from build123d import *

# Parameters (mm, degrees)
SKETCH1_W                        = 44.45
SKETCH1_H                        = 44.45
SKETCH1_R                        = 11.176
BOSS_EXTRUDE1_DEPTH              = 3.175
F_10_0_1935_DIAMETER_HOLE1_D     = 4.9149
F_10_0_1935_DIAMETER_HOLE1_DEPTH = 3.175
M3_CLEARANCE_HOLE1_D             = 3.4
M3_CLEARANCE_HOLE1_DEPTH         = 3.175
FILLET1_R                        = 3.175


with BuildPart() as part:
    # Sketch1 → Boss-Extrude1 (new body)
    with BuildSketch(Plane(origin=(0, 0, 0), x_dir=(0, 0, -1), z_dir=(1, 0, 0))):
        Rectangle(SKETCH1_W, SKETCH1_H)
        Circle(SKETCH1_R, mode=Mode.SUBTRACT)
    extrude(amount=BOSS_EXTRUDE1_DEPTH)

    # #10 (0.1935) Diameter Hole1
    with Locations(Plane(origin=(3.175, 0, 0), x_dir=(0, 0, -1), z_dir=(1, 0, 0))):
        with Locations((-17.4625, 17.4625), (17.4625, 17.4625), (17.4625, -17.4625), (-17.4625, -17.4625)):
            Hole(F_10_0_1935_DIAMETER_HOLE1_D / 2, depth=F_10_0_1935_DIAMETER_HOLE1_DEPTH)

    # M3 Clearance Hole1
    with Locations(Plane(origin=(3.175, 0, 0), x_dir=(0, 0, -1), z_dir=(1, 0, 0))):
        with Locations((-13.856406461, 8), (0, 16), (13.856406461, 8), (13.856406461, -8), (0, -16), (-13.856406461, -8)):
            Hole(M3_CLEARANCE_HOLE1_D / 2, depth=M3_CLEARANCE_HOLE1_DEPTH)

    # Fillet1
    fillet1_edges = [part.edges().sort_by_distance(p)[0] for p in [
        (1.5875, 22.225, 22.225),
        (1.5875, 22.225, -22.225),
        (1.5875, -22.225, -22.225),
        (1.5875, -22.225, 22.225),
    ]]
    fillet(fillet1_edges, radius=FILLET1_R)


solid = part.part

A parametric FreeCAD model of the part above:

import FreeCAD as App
import Part
import Sketcher
from FreeCAD import Vector
Q = App.Units.Quantity


def edges_at(feature, points):
    """Names of the edges that pass closest to the given points."""
    edges = feature.Shape.Edges
    near = lambda p: min(range(len(edges)), key=lambda i: edges[i].distToShape(Part.Vertex(*p))[0])
    return sorted({f"Edge{near(p) + 1}" for p in points})


def add_polygon(sketch, points):
    """Adds a closed chain of lines whose ends are joined by coincident constraints."""
    first, n = sketch.GeometryCount, len(points)
    for a, b in zip(points, points[1:] + points[:1]):
        sketch.addGeometry(Part.LineSegment(App.Vector(*a, 0), App.Vector(*b, 0)), False)
    for i in range(n):
        sketch.addConstraint(Sketcher.Constraint("Coincident", first + i, 2, first + (i + 1) % n, 1))

doc = App.newDocument("Part")
params = doc.addObject("Spreadsheet::Sheet", "Params")
for row, (alias, value) in enumerate([
    ("sketch1_diameter", "0.88 in"),
    ("sketch1_width", "1.75 in"),
    ("pad1_length", "0.125 in"),
    ("hole_diameter", "0.1935 in"),
    ("hole_depth", "0.125 in"),
    ("hole2_diameter", "3.4 mm"),
    ("hole2_depth", "0.125 in"),
    ("fillet_radius", "0.125 in"),
], start=1):
    params.set(f"A{row}", alias)
    params.set(f"B{row}", "=" + value)
    params.setAlias(f"B{row}", alias)

body = doc.addObject("PartDesign::Body", "Body")

sketch1 = body.newObject("Sketcher::SketchObject", "Sketch")
sketch1.AttachmentSupport = (doc.getObject("YZ_Plane"), [""])
sketch1.MapMode = "FlatFace"
add_polygon(sketch1, [(22.225, 22.225), (-22.225, 22.225), (-22.225, -22.225), (22.225, -22.225)])
sketch1.addGeometry(Part.Circle(Vector(0, 0, 0), Vector(0, 0, 1), 11.176), False)
sketch1.addConstraint(Sketcher.Constraint("Horizontal", 0))
sketch1.addConstraint(Sketcher.Constraint("Vertical", 1))
sketch1.addConstraint(Sketcher.Constraint("Horizontal", 2))
sketch1.addConstraint(Sketcher.Constraint("Vertical", 3))
sketch1.addConstraint(Sketcher.Constraint("Coincident", 4, 3, -1, 1))
sketch1.addConstraint(Sketcher.Constraint("Symmetric", 0, 2, 2, 2, -1, 1))
sketch1.addConstraint(Sketcher.Constraint("Equal", 2, 1))
sketch1.addConstraint(Sketcher.Constraint("Diameter", 4, Q("0.88 in")))
sketch1.addConstraint(Sketcher.Constraint("DistanceX", 0, 2, 0, 1, Q("1.75 in")))
sketch1.setExpression("Constraints[11]", "Params.sketch1_diameter")
sketch1.setExpression("Constraints[12]", "Params.sketch1_width")
pad1 = body.newObject("PartDesign::Pad", "Pad")
pad1.Profile = sketch1
pad1.setExpression("Length", "Params.pad1_length")

sketch2 = body.newObject("Sketcher::SketchObject", "Sketch001")
sketch2.AttachmentSupport = (doc.getObject("YZ_Plane"), [""])
sketch2.MapMode = "FlatFace"
sketch2.AttachmentOffset = App.Placement(Vector(0, 0, 0.125 * 25.4), App.Rotation())
sketch2.addGeometry(Part.Circle(Vector(17.4625, 17.4625, 0), Vector(0, 0, 1), 2.45745), False)
sketch2.addGeometry(Part.Circle(Vector(17.4625, -17.4625, 0), Vector(0, 0, 1), 2.45745), False)
sketch2.addGeometry(Part.Circle(Vector(-17.4625, -17.4625, 0), Vector(0, 0, 1), 2.45745), False)
sketch2.addGeometry(Part.Circle(Vector(-17.4625, 17.4625, 0), Vector(0, 0, 1), 2.45745), False)
sketch2.addConstraint(Sketcher.Constraint("Equal", 0, 1))
sketch2.addConstraint(Sketcher.Constraint("Equal", 1, 2))
sketch2.addConstraint(Sketcher.Constraint("Equal", 2, 3))
sketch2.addConstraint(Sketcher.Constraint("Symmetric", 0, 3, 2, 3, -1, 1))
sketch2.addConstraint(Sketcher.Constraint("Symmetric", 1, 3, 3, 3, -1, 1))
sketch2.addConstraint(Sketcher.Constraint("Symmetric", 1, 3, 2, 3, -2))
sketch2.addConstraint(Sketcher.Constraint("Diameter", 0, Q("0.1935 in")))
sketch2.addConstraint(Sketcher.Constraint("DistanceX", -1, 1, 0, 3, Q("0.6875 in")))
sketch2.addConstraint(Sketcher.Constraint("DistanceY", -1, 1, 0, 3, Q("0.6875 in")))
doc.recompute()
hole = body.newObject("PartDesign::Hole", "Hole")
hole.Profile = sketch2
hole.ThreadType = "None"
hole.setExpression("Diameter", "Params.hole_diameter")
hole.DepthType = "Dimension"
hole.setExpression("Depth", "Params.hole_depth")
hole.DrillPoint = "Flat"

sketch3 = body.newObject("Sketcher::SketchObject", "Sketch002")
sketch3.AttachmentSupport = (doc.getObject("YZ_Plane"), [""])
sketch3.MapMode = "FlatFace"
sketch3.AttachmentOffset = App.Placement(Vector(0, 0, 0.125 * 25.4), App.Rotation())
sketch3.addGeometry(Part.Circle(Vector(8, 13.856406, 0), Vector(0, 0, 1), 1.7), False)
sketch3.addGeometry(Part.Circle(Vector(16, 0, 0), Vector(0, 0, 1), 1.7), False)
sketch3.addGeometry(Part.Circle(Vector(8, -13.856406, 0), Vector(0, 0, 1), 1.7), False)
sketch3.addGeometry(Part.Circle(Vector(-8, -13.856406, 0), Vector(0, 0, 1), 1.7), False)
sketch3.addGeometry(Part.Circle(Vector(-16, 0, 0), Vector(0, 0, 1), 1.7), False)
sketch3.addGeometry(Part.Circle(Vector(-8, 13.856406, 0), Vector(0, 0, 1), 1.7), False)
sketch3.addConstraint(Sketcher.Constraint("Equal", 0, 1))
sketch3.addConstraint(Sketcher.Constraint("Equal", 1, 2))
sketch3.addConstraint(Sketcher.Constraint("Equal", 2, 3))
sketch3.addConstraint(Sketcher.Constraint("Equal", 3, 4))
sketch3.addConstraint(Sketcher.Constraint("Equal", 4, 5))
sketch3.addConstraint(Sketcher.Constraint("Symmetric", 0, 3, 3, 3, -1, 1))
sketch3.addConstraint(Sketcher.Constraint("Symmetric", 1, 3, 4, 3, -1, 1))
sketch3.addConstraint(Sketcher.Constraint("Symmetric", 2, 3, 5, 3, -1, 1))
sketch3.addConstraint(Sketcher.Constraint("Symmetric", 2, 3, 3, 3, -2))
sketch3.addConstraint(Sketcher.Constraint("PointOnObject", 1, 3, -1))
sketch3.addConstraint(Sketcher.Constraint("Diameter", 0, 3.4))
sketch3.addConstraint(Sketcher.Constraint("DistanceX", -1, 1, 0, 3, 8.0))
sketch3.addConstraint(Sketcher.Constraint("DistanceX", -1, 1, 1, 3, 16.0))
sketch3.addConstraint(Sketcher.Constraint("DistanceY", -1, 1, 0, 3, 13.856406))
doc.recompute()
hole2 = body.newObject("PartDesign::Hole", "Hole001")
hole2.Profile = sketch3
hole2.ThreadType = "None"
hole2.setExpression("Diameter", "Params.hole2_diameter")
hole2.DepthType = "Dimension"
hole2.setExpression("Depth", "Params.hole2_depth")
hole2.DrillPoint = "Flat"
doc.recompute()

fillet = body.newObject("PartDesign::Fillet", "Fillet")
fillet.Base = (hole2, edges_at(hole2, [
    (1.587, 22.225, 22.225),
    (1.587, 22.225, -22.225),
    (1.587, -22.225, -22.225),
    (1.587, -22.225, 22.225),
]))
fillet.setExpression("Radius", "Params.fillet_radius")

doc.recompute()
